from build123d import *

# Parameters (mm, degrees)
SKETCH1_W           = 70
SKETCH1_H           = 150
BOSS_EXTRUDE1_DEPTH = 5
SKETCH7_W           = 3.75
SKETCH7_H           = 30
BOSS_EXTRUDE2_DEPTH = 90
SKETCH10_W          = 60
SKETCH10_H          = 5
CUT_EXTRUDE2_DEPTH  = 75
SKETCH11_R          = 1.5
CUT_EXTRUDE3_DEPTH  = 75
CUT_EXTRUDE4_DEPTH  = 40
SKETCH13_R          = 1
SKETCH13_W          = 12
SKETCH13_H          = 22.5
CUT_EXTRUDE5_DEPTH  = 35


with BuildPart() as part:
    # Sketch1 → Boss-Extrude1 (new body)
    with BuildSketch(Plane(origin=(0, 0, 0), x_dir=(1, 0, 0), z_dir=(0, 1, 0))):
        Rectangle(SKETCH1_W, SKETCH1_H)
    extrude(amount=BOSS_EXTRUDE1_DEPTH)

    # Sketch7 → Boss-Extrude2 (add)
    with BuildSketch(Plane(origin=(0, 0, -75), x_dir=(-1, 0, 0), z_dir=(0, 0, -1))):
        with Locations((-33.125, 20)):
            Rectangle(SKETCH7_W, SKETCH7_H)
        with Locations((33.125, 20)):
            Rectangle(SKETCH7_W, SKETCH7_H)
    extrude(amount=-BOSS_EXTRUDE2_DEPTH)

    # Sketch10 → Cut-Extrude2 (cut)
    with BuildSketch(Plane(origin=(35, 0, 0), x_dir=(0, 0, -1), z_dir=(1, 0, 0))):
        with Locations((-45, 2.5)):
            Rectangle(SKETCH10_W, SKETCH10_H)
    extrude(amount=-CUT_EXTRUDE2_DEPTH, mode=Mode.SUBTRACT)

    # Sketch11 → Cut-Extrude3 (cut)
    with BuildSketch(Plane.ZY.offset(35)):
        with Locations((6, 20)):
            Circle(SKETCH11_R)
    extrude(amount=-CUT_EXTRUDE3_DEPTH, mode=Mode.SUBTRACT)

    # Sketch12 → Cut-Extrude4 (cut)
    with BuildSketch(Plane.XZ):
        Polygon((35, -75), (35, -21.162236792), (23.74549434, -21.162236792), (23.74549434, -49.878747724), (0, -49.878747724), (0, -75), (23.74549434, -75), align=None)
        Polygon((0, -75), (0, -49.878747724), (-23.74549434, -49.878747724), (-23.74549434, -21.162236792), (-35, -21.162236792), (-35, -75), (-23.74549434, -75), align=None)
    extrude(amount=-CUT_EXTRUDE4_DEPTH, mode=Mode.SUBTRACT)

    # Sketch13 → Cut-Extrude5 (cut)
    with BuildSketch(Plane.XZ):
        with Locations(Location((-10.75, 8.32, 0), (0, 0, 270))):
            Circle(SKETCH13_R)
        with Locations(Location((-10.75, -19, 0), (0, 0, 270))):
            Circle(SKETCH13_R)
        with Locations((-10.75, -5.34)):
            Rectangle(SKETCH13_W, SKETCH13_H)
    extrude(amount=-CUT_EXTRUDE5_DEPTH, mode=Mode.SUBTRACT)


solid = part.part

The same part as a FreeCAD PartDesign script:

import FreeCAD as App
import Part
import Sketcher
from FreeCAD import Vector
Q = App.Units.Quantity


def add_polygon(sketch, points):
    """Adds a closed chain of lines whose ends are joined by coincident constraints."""
    first, n = sketch.GeometryCount, len(points)
    for a, b in zip(points, points[1:] + points[:1]):
        sketch.addGeometry(Part.LineSegment(App.Vector(*a, 0), App.Vector(*b, 0)), False)
    for i in range(n):
        sketch.addConstraint(Sketcher.Constraint("Coincident", first + i, 2, first + (i + 1) % n, 1))

doc = App.newDocument("Part")
body = doc.addObject("PartDesign::Body", "Body")

# Sketch on XZ plane
sketch1 = body.newObject("Sketcher::SketchObject", "Sketch")
sketch1.AttachmentSupport = (doc.getObject("XZ_Plane"), [""])
sketch1.MapMode = "FlatFace"
add_polygon(sketch1, [(-35, -75), (-35, 75), (35, 75), (35, -75)])  # lines 0-3
sketch1.addConstraint([
    Sketcher.Constraint("Vertical", 0),
    Sketcher.Constraint("Horizontal", 1),
    Sketcher.Constraint("Vertical", 2),
    Sketcher.Constraint("Horizontal", 3),
    Sketcher.Constraint("Symmetric", 0, 2, 2, 2, -1, 1),
    Sketcher.Constraint("DistanceX", 1, 1, 1, 2, Q("70 mm")),
    Sketcher.Constraint("DistanceY", 0, 1, 0, 2, Q("150 mm")),
])
pad1 = body.newObject("PartDesign::Pad", "Pad")
pad1.Profile = sketch1
pad1.Length = 5
pad1.Reversed = True

# Sketch on XY plane
sketch2 = body.newObject("Sketcher::SketchObject", "Sketch001")
sketch2.AttachmentSupport = (doc.getObject("XY_Plane"), [""])
sketch2.MapMode = "FlatFace"
sketch2.AttachmentOffset = App.Placement(Vector(0, 0, -75), App.Rotation())
add_polygon(sketch2, [(35, 35), (35, 5), (31.2, 5), (31.2, 35)])  # lines 0-3
add_polygon(sketch2, [(-31.2, 35), (-31.2, 5), (-35, 5), (-35, 35)])  # lines 4-7
sketch2.addConstraint([
    Sketcher.Constraint("Vertical", 0),
    Sketcher.Constraint("Horizontal", 1),
    Sketcher.Constraint("Vertical", 2),
    Sketcher.Constraint("Horizontal", 3),
    Sketcher.Constraint("Vertical", 4),
    Sketcher.Constraint("Horizontal", 5),
    Sketcher.Constraint("Vertical", 6),
    Sketcher.Constraint("Horizontal", 7),
    Sketcher.Constraint("Symmetric", 1, 2, 4, 2, -2),
    Sketcher.Constraint("Symmetric", 3, 2, 6, 2, -2),
    Sketcher.Constraint("DistanceY", 0, 2, 0, 1, Q("30 mm")),
    Sketcher.Constraint("DistanceX", -1, 1, 0, 2, Q("35 mm")),
    Sketcher.Constraint("DistanceY", -1, 1, 0, 2, Q("5 mm")),
    Sketcher.Constraint("DistanceX", 1, 2, 1, 1, Q("3.75 mm")),
])
pad2 = body.newObject("PartDesign::Pad", "Pad001")
pad2.Profile = sketch2
pad2.Length = 90

# Sketch on YZ plane
sketch3 = body.newObject("Sketcher::SketchObject", "Sketch002")
sketch3.AttachmentSupport = (doc.getObject("YZ_Plane"), [""])
sketch3.MapMode = "FlatFace"
sketch3.AttachmentOffset = App.Placement(Vector(0, 0, 35), App.Rotation())
add_polygon(sketch3, [(5, 75), (0, 75), (0, 15), (5, 15)])  # lines 0-3
sketch3.addConstraint([
    Sketcher.Constraint("Horizontal", 0),
    Sketcher.Constraint("Vertical", 1),
    Sketcher.Constraint("Horizontal", 2),
    Sketcher.Constraint("Vertical", 3),
    Sketcher.Constraint("PointOnObject", 0, 2, -2),
    Sketcher.Constraint("DistanceX", 0, 2, 0, 1, Q("5 mm")),
    Sketcher.Constraint("DistanceY", 1, 2, 1, 1, Q("60 mm")),
    Sketcher.Constraint("DistanceY", -1, 1, 0, 2, Q("75 mm")),
])
pocket1 = body.newObject("PartDesign::Pocket", "Pocket")
pocket1.Profile = sketch3
pocket1.Length = 75

# Sketch on YZ plane
sketch4 = body.newObject("Sketcher::SketchObject", "Sketch003")
sketch4.AttachmentSupport = (doc.getObject("YZ_Plane"), [""])
sketch4.MapMode = "FlatFace"
sketch4.AttachmentOffset = App.Placement(Vector(0, 0, -35), App.Rotation())
sketch4.addGeometry(Part.Circle(Vector(20, 6, 0), Vector(0, 0, 1), 1.5), False)
sketch4.addConstraint([
    Sketcher.Constraint("Diameter", 0, Q("3 mm")),
    Sketcher.Constraint("DistanceX", -1, 1, 0, 3, Q("20 mm")),
    Sketcher.Constraint("DistanceY", -1, 1, 0, 3, Q("6 mm")),
])
pocket2 = body.newObject("PartDesign::Pocket", "Pocket001")
pocket2.Profile = sketch4
pocket2.Length = 75
pocket2.Reversed = True

# Sketch on XZ plane
sketch5 = body.newObject("Sketcher::SketchObject", "Sketch004")
sketch5.AttachmentSupport = (doc.getObject("XZ_Plane"), [""])
sketch5.MapMode = "FlatFace"
add_polygon(sketch5, [(35, -75), (35, -21), (24, -21), (24, -50), (-24, -50), (-24, -21), (-35, -21), (-35, -75)])  # lines 0-7
sketch5.addConstraint([
    Sketcher.Constraint("Vertical", 0),
    Sketcher.Constraint("Horizontal", 1),
    Sketcher.Constraint("Vertical", 2),
    Sketcher.Constraint("Horizontal", 3),
    Sketcher.Constraint("Vertical", 4),
    Sketcher.Constraint("Horizontal", 5),
    Sketcher.Constraint("Vertical", 6),
    Sketcher.Constraint("Horizontal", 7),
    Sketcher.Constraint("Symmetric", 1, 2, 4, 2, -2),
    Sketcher.Constraint("Equal", 1, 5),
    Sketcher.Constraint("DistanceX", 7, 1, 7, 2, Q("70 mm")),
    Sketcher.Constraint("DistanceY", 6, 2, -1, 1, Q("75 mm")),
    Sketcher.Constraint("DistanceX", 3, 2, 3, 1, Q("47.490989 mm")),
    Sketcher.Constraint("DistanceY", 2, 2, 2, 1, Q("28.716511 mm")),
    Sketcher.Constraint("DistanceY", 0, 1, 0, 2, Q("53.837763 mm")),
])
pocket3 = body.newObject("PartDesign::Pocket", "Pocket002")
pocket3.Profile = sketch5
pocket3.Length = 40

# Sketch on XZ plane
sketch6 = body.newObject("Sketcher::SketchObject", "Sketch005")
sketch6.AttachmentSupport = (doc.getObject("XZ_Plane"), [""])
sketch6.MapMode = "FlatFace"
sketch6.addGeometry(Part.Circle(Vector(-10.8, 8.3, 0), Vector(0, 0, 1), 1), False)  # 0
sketch6.addGeometry(Part.Circle(Vector(-10.8, -19, 0), Vector(0, 0, 1), 1), False)  # 1
add_polygon(sketch6, [(-16.8, 5.9), (-16.8, -16.6), (-4.8, -16.6), (-4.8, 5.9)])  # lines 2-5
sketch6.addConstraint([
    Sketcher.Constraint("Vertical", 2),
    Sketcher.Constraint("Horizontal", 3),
    Sketcher.Constraint("Vertical", 4),
    Sketcher.Constraint("Horizontal", 5),
    Sketcher.Constraint("Equal", 0, 1),
    Sketcher.Constraint("Vertical", 0, 3, 1, 3),
    Sketcher.Constraint("Diameter", 0, Q("2 mm")),
    Sketcher.Constraint("DistanceX", 3, 1, 3, 2, Q("12 mm")),
    Sketcher.Constraint("DistanceY", 2, 2, 2, 1, Q("22.5 mm")),
    Sketcher.Constraint("DistanceY", 1, 3, -1, 1, Q("19 mm")),
    Sketcher.Constraint("DistanceX", 2, 2, 1, 3, Q("6 mm")),
    Sketcher.Constraint("DistanceX", 0, 3, -1, 1, Q("10.75 mm")),
    Sketcher.Constraint("DistanceY", -1, 1, 0, 3, Q("8.32 mm")),
    Sketcher.Constraint("DistanceY", 2, 2, -1, 1, Q("16.59 mm")),
])
pocket4 = body.newObject("PartDesign::Pocket", "Pocket003")
pocket4.Profile = sketch6
pocket4.Length = 35

doc.recompute()
